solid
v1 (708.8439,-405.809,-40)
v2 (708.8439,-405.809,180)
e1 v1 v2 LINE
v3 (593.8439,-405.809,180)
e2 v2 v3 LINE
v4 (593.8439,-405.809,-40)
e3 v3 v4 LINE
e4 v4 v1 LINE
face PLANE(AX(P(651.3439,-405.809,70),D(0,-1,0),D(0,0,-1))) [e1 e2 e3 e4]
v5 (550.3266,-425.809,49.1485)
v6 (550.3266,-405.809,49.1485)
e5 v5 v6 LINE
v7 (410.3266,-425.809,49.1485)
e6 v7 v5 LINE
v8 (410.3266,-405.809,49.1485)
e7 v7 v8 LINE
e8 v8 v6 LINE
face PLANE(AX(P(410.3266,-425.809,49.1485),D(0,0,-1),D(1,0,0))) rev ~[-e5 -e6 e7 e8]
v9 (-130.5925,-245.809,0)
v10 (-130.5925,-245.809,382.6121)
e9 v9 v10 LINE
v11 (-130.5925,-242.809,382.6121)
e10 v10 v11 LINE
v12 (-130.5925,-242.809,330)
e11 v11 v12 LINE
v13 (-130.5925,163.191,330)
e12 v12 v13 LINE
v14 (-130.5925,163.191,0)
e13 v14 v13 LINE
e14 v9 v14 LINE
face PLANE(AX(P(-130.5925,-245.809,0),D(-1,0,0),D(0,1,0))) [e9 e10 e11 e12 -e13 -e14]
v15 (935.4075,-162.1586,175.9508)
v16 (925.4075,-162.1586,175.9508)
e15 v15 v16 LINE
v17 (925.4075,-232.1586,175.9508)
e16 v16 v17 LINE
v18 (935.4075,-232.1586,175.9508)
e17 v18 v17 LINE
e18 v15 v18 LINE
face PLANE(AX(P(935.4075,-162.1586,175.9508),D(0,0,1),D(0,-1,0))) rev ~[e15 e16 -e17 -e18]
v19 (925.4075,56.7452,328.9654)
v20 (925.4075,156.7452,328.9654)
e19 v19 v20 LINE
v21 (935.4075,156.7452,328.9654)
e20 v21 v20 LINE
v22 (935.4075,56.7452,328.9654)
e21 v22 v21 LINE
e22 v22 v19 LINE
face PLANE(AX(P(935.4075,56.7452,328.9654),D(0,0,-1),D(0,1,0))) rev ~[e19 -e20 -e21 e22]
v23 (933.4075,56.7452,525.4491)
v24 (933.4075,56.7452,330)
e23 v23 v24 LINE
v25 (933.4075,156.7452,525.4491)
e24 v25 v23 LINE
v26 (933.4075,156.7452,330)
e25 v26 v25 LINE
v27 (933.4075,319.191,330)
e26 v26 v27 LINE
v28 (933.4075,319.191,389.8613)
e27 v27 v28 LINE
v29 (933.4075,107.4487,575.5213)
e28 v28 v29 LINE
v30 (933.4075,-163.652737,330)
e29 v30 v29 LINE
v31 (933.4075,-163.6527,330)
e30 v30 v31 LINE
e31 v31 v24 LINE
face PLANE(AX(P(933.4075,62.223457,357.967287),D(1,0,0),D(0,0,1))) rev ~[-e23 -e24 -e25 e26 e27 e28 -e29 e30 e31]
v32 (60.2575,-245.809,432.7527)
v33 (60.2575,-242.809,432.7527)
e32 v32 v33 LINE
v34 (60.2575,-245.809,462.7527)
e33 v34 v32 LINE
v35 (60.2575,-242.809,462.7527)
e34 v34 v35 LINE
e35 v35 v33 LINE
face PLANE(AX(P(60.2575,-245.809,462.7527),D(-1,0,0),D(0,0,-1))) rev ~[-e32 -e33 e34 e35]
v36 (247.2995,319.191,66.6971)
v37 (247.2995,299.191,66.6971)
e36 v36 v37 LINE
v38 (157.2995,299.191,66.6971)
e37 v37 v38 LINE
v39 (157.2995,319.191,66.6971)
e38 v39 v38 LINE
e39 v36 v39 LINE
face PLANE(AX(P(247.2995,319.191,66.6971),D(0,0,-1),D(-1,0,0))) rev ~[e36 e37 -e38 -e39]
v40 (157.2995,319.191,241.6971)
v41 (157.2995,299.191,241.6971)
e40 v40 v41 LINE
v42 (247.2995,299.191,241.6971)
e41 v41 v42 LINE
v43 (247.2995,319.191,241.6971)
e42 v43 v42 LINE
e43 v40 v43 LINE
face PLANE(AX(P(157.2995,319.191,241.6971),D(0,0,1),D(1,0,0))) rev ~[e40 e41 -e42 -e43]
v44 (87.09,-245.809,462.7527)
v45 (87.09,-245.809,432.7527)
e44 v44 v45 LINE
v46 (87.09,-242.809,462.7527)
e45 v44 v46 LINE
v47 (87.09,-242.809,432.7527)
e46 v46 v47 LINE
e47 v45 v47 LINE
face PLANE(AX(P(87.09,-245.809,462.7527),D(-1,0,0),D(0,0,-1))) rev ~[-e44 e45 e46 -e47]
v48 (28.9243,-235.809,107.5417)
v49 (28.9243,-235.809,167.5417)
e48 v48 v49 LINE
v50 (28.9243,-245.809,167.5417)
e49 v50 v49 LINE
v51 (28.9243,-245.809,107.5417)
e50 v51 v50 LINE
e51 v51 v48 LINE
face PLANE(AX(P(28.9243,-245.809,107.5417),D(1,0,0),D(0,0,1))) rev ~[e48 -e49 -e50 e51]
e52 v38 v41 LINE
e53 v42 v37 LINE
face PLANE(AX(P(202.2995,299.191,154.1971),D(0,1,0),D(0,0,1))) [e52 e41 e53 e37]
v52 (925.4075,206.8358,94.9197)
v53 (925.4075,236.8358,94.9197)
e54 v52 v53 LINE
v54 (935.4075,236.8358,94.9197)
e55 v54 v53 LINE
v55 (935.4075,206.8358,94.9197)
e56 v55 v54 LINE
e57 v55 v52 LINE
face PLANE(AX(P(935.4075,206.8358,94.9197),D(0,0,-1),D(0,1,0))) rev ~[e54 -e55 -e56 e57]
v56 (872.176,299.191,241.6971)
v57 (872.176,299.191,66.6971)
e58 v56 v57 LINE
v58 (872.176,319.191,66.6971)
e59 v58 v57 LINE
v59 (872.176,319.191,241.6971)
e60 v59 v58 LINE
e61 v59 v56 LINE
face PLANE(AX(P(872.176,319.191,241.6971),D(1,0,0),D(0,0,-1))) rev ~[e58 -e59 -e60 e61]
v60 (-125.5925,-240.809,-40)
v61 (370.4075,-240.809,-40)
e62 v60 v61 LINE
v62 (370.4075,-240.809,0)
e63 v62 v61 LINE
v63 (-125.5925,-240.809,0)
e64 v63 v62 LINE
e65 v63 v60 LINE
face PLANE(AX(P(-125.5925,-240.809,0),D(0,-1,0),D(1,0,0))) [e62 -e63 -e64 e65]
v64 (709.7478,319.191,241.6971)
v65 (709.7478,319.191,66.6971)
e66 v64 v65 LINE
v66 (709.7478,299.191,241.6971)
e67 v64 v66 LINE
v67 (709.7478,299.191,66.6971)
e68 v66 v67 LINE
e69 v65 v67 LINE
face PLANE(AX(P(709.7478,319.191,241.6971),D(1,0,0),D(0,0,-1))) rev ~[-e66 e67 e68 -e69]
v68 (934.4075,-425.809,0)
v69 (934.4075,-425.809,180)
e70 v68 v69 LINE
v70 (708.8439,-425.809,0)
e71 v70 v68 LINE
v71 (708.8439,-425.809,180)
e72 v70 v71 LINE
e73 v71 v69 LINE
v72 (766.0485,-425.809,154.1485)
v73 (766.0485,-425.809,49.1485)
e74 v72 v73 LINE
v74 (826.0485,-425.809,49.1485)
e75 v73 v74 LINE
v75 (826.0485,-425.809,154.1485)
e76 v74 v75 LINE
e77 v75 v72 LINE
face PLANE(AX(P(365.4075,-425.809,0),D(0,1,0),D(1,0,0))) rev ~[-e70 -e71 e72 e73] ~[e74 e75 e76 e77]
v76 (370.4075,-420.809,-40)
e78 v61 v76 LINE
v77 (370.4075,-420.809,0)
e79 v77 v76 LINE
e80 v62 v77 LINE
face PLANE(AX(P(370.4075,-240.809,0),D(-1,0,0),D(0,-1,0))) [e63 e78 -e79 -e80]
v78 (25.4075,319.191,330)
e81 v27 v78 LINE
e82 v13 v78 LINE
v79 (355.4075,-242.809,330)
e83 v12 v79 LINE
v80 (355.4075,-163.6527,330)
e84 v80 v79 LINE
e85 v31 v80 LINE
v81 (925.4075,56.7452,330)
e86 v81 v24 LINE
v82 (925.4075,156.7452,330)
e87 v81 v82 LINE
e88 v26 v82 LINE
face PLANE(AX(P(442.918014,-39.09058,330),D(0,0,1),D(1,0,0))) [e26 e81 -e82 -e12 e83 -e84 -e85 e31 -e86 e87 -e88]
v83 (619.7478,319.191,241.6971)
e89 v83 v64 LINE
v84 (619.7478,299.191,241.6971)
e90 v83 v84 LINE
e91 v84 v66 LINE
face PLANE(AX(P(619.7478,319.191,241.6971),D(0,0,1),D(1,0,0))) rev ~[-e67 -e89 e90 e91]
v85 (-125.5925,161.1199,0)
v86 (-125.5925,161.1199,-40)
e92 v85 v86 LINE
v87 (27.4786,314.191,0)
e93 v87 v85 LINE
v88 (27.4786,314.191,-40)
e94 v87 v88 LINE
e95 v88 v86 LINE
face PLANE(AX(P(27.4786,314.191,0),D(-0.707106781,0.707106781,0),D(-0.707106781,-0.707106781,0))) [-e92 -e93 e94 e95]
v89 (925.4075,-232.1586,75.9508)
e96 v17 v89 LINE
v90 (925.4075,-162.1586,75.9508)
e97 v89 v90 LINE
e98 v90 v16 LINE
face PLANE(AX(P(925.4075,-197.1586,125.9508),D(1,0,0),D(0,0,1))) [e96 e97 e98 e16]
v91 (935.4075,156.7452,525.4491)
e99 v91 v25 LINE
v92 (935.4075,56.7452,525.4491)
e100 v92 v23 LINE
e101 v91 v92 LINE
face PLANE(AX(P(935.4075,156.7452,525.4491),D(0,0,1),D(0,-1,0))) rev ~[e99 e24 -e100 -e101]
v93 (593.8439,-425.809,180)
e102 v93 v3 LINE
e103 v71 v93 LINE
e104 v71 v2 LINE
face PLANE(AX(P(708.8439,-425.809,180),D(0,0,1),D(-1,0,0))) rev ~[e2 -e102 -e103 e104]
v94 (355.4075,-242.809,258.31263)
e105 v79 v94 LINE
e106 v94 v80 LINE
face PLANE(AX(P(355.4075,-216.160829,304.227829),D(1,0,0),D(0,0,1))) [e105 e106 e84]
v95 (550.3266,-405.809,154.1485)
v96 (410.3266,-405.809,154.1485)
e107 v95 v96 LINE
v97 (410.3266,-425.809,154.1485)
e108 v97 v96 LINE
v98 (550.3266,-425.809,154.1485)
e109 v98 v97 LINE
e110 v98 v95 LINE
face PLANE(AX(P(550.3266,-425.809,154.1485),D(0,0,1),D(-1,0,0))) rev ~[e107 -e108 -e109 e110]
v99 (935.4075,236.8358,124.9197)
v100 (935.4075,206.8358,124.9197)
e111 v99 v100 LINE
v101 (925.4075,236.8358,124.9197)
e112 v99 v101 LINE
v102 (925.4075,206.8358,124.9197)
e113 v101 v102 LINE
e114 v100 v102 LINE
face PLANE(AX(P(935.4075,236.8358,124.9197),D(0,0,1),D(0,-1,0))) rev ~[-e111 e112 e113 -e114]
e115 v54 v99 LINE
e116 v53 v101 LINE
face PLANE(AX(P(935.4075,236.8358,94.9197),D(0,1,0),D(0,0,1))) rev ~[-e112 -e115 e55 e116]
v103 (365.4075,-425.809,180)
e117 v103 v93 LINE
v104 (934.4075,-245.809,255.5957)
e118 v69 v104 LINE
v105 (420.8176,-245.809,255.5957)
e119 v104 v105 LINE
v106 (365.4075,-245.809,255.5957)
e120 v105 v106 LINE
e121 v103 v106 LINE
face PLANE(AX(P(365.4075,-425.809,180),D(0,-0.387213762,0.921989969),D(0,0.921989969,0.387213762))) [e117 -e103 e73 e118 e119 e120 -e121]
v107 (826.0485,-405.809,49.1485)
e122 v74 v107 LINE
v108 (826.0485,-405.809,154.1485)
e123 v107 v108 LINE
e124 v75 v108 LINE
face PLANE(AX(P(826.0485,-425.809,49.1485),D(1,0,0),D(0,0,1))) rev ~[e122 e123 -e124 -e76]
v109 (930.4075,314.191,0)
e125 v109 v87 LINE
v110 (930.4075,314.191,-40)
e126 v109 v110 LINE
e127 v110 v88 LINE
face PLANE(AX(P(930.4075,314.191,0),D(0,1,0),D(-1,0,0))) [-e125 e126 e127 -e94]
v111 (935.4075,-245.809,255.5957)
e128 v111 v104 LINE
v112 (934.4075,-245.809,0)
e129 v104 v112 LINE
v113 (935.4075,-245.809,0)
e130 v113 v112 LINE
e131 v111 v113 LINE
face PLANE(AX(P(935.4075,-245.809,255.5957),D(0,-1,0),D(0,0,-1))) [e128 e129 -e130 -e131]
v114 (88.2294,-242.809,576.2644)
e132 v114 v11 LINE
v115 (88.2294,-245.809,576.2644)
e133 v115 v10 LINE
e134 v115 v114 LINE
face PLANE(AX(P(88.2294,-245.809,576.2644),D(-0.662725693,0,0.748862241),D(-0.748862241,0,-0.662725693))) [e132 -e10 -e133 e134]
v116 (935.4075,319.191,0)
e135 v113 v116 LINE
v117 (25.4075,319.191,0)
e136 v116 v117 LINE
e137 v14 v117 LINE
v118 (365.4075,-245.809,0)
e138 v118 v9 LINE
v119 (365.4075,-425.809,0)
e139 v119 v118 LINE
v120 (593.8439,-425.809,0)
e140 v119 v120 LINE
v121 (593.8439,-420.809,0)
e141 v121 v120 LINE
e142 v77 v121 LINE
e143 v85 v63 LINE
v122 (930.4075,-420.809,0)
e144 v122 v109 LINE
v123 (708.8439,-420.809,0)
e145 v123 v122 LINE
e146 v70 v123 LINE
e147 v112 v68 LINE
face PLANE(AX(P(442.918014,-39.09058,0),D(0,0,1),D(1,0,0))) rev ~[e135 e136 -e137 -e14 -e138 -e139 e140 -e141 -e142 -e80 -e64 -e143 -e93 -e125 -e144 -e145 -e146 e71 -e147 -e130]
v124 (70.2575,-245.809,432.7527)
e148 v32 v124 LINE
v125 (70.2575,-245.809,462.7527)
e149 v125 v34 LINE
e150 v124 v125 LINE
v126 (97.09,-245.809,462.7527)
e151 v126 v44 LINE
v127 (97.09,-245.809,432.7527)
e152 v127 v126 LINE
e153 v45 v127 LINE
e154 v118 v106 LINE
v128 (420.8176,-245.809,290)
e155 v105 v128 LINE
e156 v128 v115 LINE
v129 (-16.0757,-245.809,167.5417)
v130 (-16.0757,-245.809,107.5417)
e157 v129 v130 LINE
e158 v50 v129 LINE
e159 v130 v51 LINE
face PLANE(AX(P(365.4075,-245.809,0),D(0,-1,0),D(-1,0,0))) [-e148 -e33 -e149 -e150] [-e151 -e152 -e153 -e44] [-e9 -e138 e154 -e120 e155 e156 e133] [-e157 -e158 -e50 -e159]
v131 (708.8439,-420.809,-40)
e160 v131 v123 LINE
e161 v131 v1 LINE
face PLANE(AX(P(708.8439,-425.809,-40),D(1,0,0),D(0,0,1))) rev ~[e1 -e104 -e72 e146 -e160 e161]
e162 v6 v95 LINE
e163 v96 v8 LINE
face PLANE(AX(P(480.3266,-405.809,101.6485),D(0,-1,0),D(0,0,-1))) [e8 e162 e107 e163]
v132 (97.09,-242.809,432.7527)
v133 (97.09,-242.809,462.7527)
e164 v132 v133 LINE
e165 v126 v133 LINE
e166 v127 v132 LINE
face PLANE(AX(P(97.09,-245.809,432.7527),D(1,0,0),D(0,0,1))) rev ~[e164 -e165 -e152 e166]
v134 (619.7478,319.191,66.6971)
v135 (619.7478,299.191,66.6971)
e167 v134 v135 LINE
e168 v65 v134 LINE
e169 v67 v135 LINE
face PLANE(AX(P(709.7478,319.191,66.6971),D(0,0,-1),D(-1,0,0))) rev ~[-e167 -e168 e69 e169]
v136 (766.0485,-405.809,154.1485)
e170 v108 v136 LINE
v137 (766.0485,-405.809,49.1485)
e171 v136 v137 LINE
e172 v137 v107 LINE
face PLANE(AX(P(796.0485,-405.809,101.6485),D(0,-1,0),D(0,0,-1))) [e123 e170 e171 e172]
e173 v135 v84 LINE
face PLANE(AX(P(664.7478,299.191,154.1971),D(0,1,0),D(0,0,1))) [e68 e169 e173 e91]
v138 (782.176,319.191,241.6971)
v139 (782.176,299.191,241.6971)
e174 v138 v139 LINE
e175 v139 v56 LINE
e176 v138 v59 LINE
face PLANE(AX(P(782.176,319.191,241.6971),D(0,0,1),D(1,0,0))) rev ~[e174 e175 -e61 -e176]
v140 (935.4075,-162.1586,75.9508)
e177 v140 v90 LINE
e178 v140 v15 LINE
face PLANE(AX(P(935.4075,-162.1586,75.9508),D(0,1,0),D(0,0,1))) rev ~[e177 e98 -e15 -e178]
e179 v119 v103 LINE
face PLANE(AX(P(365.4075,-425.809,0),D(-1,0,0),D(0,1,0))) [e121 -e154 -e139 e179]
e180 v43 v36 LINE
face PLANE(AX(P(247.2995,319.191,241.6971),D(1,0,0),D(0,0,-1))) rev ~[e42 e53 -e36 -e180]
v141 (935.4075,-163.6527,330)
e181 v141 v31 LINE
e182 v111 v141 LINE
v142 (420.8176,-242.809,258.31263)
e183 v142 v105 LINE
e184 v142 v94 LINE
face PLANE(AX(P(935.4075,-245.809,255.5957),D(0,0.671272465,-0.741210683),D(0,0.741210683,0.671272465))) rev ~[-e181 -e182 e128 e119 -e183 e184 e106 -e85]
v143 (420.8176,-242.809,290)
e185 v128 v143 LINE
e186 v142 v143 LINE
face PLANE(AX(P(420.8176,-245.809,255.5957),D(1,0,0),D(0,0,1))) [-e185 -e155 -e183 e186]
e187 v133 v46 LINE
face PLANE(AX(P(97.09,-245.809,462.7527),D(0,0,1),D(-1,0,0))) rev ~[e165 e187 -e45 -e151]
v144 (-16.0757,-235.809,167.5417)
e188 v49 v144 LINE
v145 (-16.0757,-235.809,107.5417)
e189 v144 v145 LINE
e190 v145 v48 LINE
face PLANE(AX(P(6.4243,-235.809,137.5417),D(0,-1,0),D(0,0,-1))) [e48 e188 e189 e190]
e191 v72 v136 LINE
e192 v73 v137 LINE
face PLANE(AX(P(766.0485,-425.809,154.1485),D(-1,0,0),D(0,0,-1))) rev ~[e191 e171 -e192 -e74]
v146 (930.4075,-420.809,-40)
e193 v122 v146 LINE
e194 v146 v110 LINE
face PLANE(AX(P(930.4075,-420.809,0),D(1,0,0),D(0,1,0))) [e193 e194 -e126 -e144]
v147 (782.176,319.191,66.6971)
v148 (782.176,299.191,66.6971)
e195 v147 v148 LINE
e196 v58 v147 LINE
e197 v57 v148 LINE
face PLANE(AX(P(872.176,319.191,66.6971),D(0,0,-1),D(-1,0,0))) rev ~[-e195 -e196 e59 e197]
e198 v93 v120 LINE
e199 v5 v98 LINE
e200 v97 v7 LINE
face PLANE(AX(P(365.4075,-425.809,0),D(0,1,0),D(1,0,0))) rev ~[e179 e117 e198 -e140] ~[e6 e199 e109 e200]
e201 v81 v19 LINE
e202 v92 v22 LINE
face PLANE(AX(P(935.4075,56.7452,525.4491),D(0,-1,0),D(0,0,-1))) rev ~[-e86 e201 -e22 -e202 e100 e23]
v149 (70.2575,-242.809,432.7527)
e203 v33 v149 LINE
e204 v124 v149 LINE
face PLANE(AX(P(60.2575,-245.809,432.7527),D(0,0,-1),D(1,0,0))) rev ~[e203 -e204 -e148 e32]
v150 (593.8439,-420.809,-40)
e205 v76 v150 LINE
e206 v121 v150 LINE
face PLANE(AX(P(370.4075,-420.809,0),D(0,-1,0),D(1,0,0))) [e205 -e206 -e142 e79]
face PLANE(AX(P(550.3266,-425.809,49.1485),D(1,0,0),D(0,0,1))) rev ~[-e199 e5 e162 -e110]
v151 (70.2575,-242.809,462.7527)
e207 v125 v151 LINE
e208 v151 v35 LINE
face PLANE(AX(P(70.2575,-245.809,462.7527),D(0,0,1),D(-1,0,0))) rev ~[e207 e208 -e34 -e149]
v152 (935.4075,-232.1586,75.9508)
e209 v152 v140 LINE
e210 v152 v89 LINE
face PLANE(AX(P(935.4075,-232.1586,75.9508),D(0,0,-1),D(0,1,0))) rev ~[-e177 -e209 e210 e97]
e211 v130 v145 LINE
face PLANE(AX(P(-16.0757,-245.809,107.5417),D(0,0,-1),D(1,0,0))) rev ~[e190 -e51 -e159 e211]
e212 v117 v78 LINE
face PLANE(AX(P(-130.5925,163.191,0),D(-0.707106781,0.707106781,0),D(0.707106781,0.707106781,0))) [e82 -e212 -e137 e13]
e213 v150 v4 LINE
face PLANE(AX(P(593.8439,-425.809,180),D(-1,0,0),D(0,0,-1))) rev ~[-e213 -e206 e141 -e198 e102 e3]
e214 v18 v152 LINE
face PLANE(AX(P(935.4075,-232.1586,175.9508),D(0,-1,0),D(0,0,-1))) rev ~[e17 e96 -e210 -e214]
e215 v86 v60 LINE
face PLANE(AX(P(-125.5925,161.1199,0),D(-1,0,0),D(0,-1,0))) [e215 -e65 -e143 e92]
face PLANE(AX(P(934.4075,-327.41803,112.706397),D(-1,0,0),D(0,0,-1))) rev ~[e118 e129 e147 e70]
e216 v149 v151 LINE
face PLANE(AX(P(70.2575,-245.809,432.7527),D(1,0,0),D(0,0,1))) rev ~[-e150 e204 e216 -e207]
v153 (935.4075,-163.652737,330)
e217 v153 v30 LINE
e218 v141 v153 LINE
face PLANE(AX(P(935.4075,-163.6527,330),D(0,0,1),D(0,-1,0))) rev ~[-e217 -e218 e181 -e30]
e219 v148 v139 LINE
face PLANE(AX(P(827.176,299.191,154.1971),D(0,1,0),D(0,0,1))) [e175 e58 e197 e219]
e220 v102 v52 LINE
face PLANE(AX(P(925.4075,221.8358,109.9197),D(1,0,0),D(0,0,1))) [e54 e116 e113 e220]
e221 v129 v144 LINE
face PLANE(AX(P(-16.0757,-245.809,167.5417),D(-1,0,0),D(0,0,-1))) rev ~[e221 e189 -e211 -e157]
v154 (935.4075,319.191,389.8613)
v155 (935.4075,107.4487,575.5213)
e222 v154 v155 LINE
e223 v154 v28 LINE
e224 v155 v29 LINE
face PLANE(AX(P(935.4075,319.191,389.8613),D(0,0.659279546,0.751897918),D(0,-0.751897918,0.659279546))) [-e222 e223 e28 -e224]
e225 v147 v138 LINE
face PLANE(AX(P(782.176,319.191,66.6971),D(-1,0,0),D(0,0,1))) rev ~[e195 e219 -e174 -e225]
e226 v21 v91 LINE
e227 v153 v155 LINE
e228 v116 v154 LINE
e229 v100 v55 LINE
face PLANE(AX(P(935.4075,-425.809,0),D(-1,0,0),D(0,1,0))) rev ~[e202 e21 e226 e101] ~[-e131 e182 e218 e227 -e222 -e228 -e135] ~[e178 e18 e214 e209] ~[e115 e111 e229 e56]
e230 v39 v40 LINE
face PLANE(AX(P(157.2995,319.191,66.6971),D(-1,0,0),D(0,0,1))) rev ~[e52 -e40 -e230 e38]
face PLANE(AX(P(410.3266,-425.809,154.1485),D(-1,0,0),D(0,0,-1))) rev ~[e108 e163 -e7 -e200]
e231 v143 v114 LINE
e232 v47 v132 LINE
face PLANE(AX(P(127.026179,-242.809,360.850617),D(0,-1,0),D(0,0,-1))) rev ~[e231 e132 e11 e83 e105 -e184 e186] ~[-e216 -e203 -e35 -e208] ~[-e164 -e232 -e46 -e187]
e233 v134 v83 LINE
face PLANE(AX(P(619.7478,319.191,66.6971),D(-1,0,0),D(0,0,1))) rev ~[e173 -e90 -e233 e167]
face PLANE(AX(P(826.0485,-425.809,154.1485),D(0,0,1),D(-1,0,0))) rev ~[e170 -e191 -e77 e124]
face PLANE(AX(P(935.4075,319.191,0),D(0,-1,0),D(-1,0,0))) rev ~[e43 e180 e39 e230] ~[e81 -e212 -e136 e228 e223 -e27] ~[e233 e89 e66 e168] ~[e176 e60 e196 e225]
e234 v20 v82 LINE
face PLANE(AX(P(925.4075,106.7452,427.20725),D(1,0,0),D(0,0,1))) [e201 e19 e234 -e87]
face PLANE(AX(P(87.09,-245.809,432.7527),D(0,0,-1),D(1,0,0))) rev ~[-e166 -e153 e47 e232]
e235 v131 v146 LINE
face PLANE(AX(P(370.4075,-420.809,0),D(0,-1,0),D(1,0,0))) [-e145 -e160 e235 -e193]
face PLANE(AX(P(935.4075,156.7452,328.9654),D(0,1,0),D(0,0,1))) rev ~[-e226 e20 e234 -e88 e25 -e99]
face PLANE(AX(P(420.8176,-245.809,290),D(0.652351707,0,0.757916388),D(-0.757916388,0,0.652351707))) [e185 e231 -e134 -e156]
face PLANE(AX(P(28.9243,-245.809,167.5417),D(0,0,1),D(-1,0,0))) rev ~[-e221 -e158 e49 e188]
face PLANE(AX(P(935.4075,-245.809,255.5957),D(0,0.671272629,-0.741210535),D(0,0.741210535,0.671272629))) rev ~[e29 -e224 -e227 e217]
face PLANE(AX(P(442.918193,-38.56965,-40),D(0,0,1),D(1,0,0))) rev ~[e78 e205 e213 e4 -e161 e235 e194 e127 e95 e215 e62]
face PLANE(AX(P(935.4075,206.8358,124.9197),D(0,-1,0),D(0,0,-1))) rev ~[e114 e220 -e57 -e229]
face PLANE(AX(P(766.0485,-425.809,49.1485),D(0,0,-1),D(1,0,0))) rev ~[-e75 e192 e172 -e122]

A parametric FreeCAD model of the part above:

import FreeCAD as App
import Part
import Sketcher

V = App.Vector
Q = App.Units.Quantity


def add_polygon(sketch, points):
    """Adds a closed chain of lines whose ends are joined by coincident constraints."""
    first, n = sketch.GeometryCount, len(points)
    for a, b in zip(points, points[1:] + points[:1]):
        sketch.addGeometry(Part.LineSegment(App.Vector(*a, 0), App.Vector(*b, 0)), False)
    for i in range(n):
        sketch.addConstraint(Sketcher.Constraint("Coincident", first + i, 2, first + (i + 1) % n, 1))

doc = App.newDocument("Part")
params = doc.addObject("Spreadsheet::Sheet", "Params")
for row, (alias, value) in enumerate([
    ("sketch1_width", "570 mm"),
    ("sketch1_width2", "910 mm"),
    ("sketch1_width3", "496 mm"),
    ("sketch1_height", "180 mm"),
    ("sketch1_height2", "745 mm"),
    ("pad1_length", "330 mm"),
    ("sketch2_width", "180 mm"),
    ("sketch2_height", "150 mm"),
    ("sketch2_length", "195.23 mm"),
    ("pocket1_length", "730 mm"),
    ("sketch3_width", "565 mm"),
    ("pad2_length", "2 mm"),
    ("pocket2_length", "580 mm"),
    ("sketch5_width", "551.41 mm"),
    ("pad3_length", "3 mm"),
    ("sketch6_width", "560 mm"),
    ("sketch6_width2", "496 mm"),
    ("sketch6_height", "735 mm"),
    ("sketch6_height2", "180 mm"),
    ("pad4_length", "40 mm"),
    ("sketch7_width", "100 mm"),
    ("sketch7_width2", "70 mm"),
    ("sketch7_width3", "30 mm"),
    ("pocket3_length", "10 mm"),
    ("sketch8_width", "115 mm"),
    ("sketch8_width2", "60 mm"),
    ("sketch8_width3", "140 mm"),
    ("sketch8_height", "220 mm"),
    ("sketch8_height2", "105 mm"),
    ("pocket4_length", "20 mm"),
    ("sketch9_width", "45 mm"),
    ("sketch9_width2", "10 mm"),
    ("sketch9_height", "60 mm"),
    ("sketch9_height2", "30 mm"),
    ("pocket5_length", "10 mm"),
    ("sketch10_width", "90 mm"),
    ("sketch10_height", "175 mm"),
    ("pocket6_length", "20 mm"),
    ("sketch11_width", "180 mm"),
    ("sketch11_length", "195.23 mm"),
    ("pocket7_length", "1 mm"),
], start=1):
    params.set(f"A{row}", alias)
    params.set(f"B{row}", "=" + value)
    params.setAlias(f"B{row}", alias)

body = doc.addObject("PartDesign::Body", "Body")

sketch1 = body.newObject("Sketcher::SketchObject", "Sketch")
sketch1.AttachmentSupport = (doc.getObject("XY_Plane"), [""])
sketch1.MapMode = "FlatFace"
add_polygon(sketch1, [(365, -246), (365, -426), (935, -426), (935, 319), (25, 319), (-131, 163), (-131, -246)])
sketch1.addConstraint(Sketcher.Constraint("Vertical", 0))
sketch1.addConstraint(Sketcher.Constraint("Horizontal", 1))
sketch1.addConstraint(Sketcher.Constraint("Vertical", 2))
sketch1.addConstraint(Sketcher.Constraint("Horizontal", 3))
sketch1.addConstraint(Sketcher.Constraint("Vertical", 5))
sketch1.addConstraint(Sketcher.Constraint("Horizontal", 6))
sketch1.addConstraint(Sketcher.Constraint("DistanceX", 1, 1, 1, 2, Q("570 mm")))
sketch1.addConstraint(Sketcher.Constraint("DistanceX", 3, 2, 3, 1, Q("910 mm")))
sketch1.addConstraint(Sketcher.Constraint("DistanceX", 6, 1, 6, 2, Q("496 mm")))
sketch1.addConstraint(Sketcher.Constraint("DistanceY", 0, 2, 0, 1, Q("180 mm")))
sketch1.addConstraint(Sketcher.Constraint("DistanceY", 2, 1, 2, 2, Q("745 mm")))
sketch1.addConstraint(Sketcher.Constraint("DistanceY", 5, 2, 5, 1, Q("409 mm")))
sketch1.addConstraint(Sketcher.Constraint("DistanceX", -1, 1, 0, 2, Q("365.4075 mm")))
sketch1.addConstraint(Sketcher.Constraint("DistanceY", 0, 2, -1, 1, Q("425.809 mm")))
sketch1.setExpression("Constraints[13]", "Params.sketch1_width")
sketch1.setExpression("Constraints[14]", "Params.sketch1_width2")
sketch1.setExpression("Constraints[15]", "Params.sketch1_width3")
sketch1.setExpression("Constraints[16]", "Params.sketch1_height")
sketch1.setExpression("Constraints[17]", "Params.sketch1_height2")
pad1 = body.newObject("PartDesign::Pad", "Pad")
pad1.Profile = sketch1
pad1.setExpression("Length", "Params.pad1_length")

sketch2 = body.newObject("Sketcher::SketchObject", "Sketch001")
sketch2.AttachmentSupport = (doc.getObject("YZ_Plane"), [""])
sketch2.MapMode = "FlatFace"
sketch2.AttachmentOffset = App.Placement(V(0, 0, 365.4075), App.Rotation())
add_polygon(sketch2, [(-246, 256), (-426, 180), (-426, 330), (-246, 330)])
sketch2.addConstraint(Sketcher.Constraint("Vertical", 1))
sketch2.addConstraint(Sketcher.Constraint("Horizontal", 2))
sketch2.addConstraint(Sketcher.Constraint("Vertical", 3))
sketch2.addConstraint(Sketcher.Constraint("DistanceX", 2, 1, 2, 2, Q("180 mm")))
sketch2.addConstraint(Sketcher.Constraint("DistanceY", 1, 1, 1, 2, Q("150 mm")))
sketch2.addConstraint(Sketcher.Constraint("DistanceY", -1, 1, 0, 2, Q("180 mm")))
sketch2.addConstraint(Sketcher.Constraint("Distance", 0, Q("195.23 mm")))
sketch2.addConstraint(Sketcher.Constraint("DistanceX", 0, 2, -1, 1, Q("425.809 mm")))
sketch2.setExpression("Constraints[7]", "Params.sketch2_width")
sketch2.setExpression("Constraints[8]", "Params.sketch2_height")
sketch2.setExpression("Constraints[10]", "Params.sketch2_length")
pocket1 = body.newObject("PartDesign::Pocket", "Pocket")
pocket1.Profile = sketch2
pocket1.setExpression("Length", "Params.pocket1_length")
pocket1.Reversed = True

sketch3 = body.newObject("Sketcher::SketchObject", "Sketch002")
sketch3.AttachmentSupport = (doc.getObject("YZ_Plane"), [""])
sketch3.MapMode = "FlatFace"
sketch3.AttachmentOffset = App.Placement(V(0, 0, 935.4075), App.Rotation())
add_polygon(sketch3, [(-246, 256), (319, 256), (319, 390), (107, 576)])
sketch3.addConstraint(Sketcher.Constraint("Horizontal", 0))
sketch3.addConstraint(Sketcher.Constraint("Vertical", 1))
sketch3.addConstraint(Sketcher.Constraint("DistanceX", 0, 1, 0, 2, Q("565 mm")))
sketch3.addConstraint(Sketcher.Constraint("DistanceY", 1, 2, 2, 2, Q("185.66 mm")))
sketch3.addConstraint(Sketcher.Constraint("DistanceY", 1, 1, 1, 2, Q("134.2656 mm")))
sketch3.addConstraint(Sketcher.Constraint("DistanceX", -1, 1, 0, 2, Q("319.191 mm")))
sketch3.addConstraint(Sketcher.Constraint("Distance", 2, Q("281.6104 mm")))
sketch3.addConstraint(Sketcher.Constraint("DistanceY", -1, 1, 0, 2, Q("255.5957 mm")))
sketch3.setExpression("Constraints[6]", "Params.sketch3_width")
pad2 = body.newObject("PartDesign::Pad", "Pad001")
pad2.Profile = sketch3
pad2.setExpression("Length", "Params.pad2_length")
pad2.Reversed = True

sketch4 = body.newObject("Sketcher::SketchObject", "Sketch003")
sketch4.AttachmentSupport = (doc.getObject("YZ_Plane"), [""])
sketch4.MapMode = "FlatFace"
sketch4.AttachmentOffset = App.Placement(V(0, 0, 935.4075), App.Rotation())
add_polygon(sketch4, [(-246, 330), (-246, 256), (-164, 330)])
sketch4.addConstraint(Sketcher.Constraint("Vertical", 0))
sketch4.addConstraint(Sketcher.Constraint("Horizontal", 2))
sketch4.addConstraint(Sketcher.Constraint("DistanceY", -1, 1, 1, 2, Q("330 mm")))
sketch4.addConstraint(Sketcher.Constraint("DistanceX", 2, 2, 2, 1, Q("82.1563 mm")))
sketch4.addConstraint(Sketcher.Constraint("DistanceY", 0, 2, 0, 1, Q("74.4043 mm")))
sketch4.addConstraint(Sketcher.Constraint("DistanceX", 0, 2, -1, 1, Q("245.809 mm")))
pocket2 = body.newObject("PartDesign::Pocket", "Pocket001")
pocket2.Profile = sketch4
pocket2.setExpression("Length", "Params.pocket2_length")

sketch5 = body.newObject("Sketcher::SketchObject", "Sketch004")
sketch5.AttachmentSupport = (doc.getObject("XZ_Plane"), [""])
sketch5.MapMode = "FlatFace"
sketch5.AttachmentOffset = App.Placement(V(0, 0, 245.809), App.Rotation())
add_polygon(sketch5, [(-131, 256), (421, 256), (421, 290), (88, 576), (-131, 383)])
sketch5.addConstraint(Sketcher.Constraint("Horizontal", 0))
sketch5.addConstraint(Sketcher.Constraint("Vertical", 1))
sketch5.addConstraint(Sketcher.Constraint("Vertical", 4))
sketch5.addConstraint(Sketcher.Constraint("DistanceY", -1, 1, 1, 2, Q("290 mm")))
sketch5.addConstraint(Sketcher.Constraint("DistanceX", 0, 1, 0, 2, Q("551.41 mm")))
sketch5.addConstraint(Sketcher.Constraint("Angle", 2, Q("139.2809 deg")))
sketch5.addConstraint(Sketcher.Constraint("Distance", 2, Q("438.819 mm")))
sketch5.addConstraint(Sketcher.Constraint("DistanceY", 1, 1, 1, 2, Q("34.4043 mm")))
sketch5.addConstraint(Sketcher.Constraint("DistanceY", 4, 2, 4, 1, Q("127.0164 mm")))
sketch5.addConstraint(Sketcher.Constraint("DistanceX", -1, 1, 0, 2, Q("420.8176 mm")))
sketch5.setExpression("Constraints[9]", "Params.sketch5_width")
pad3 = body.newObject("PartDesign::Pad", "Pad002")
pad3.Profile = sketch5
pad3.setExpression("Length", "Params.pad3_length")
pad3.Reversed = True

sketch6 = body.newObject("Sketcher::SketchObject", "Sketch005")
sketch6.AttachmentSupport = (doc.getObject("XY_Plane"), [""])
sketch6.MapMode = "FlatFace"
add_polygon(sketch6, [(930, 314), (930, -421), (370, -421), (370, -241), (-126, -241), (-126, 161), (27, 314)])
sketch6.addConstraint(Sketcher.Constraint("Vertical", 0))
sketch6.addConstraint(Sketcher.Constraint("Horizontal", 1))
sketch6.addConstraint(Sketcher.Constraint("Vertical", 2))
sketch6.addConstraint(Sketcher.Constraint("Horizontal", 3))
sketch6.addConstraint(Sketcher.Constraint("Vertical", 4))
sketch6.addConstraint(Sketcher.Constraint("Horizontal", 6))
sketch6.addConstraint(Sketcher.Constraint("DistanceX", 1, 2, 1, 1, Q("560 mm")))
sketch6.addConstraint(Sketcher.Constraint("DistanceX", 3, 2, 3, 1, Q("496 mm")))
sketch6.addConstraint(Sketcher.Constraint("DistanceY", 0, 2, 0, 1, Q("735 mm")))
sketch6.addConstraint(Sketcher.Constraint("DistanceY", 2, 1, 2, 2, Q("180 mm")))
sketch6.addConstraint(Sketcher.Constraint("Angle", 5, Q("45 deg")))
sketch6.addConstraint(Sketcher.Constraint("DistanceX", 6, 1, 6, 2, Q("902.929 mm")))
sketch6.addConstraint(Sketcher.Constraint("DistanceY", -1, 1, 4, 2, Q("161.12 mm")))
sketch6.addConstraint(Sketcher.Constraint("DistanceX", -1, 1, 0, 2, Q("930.4075 mm")))
sketch6.setExpression("Constraints[13]", "Params.sketch6_width")
sketch6.setExpression("Constraints[14]", "Params.sketch6_width2")
sketch6.setExpression("Constraints[15]", "Params.sketch6_height")
sketch6.setExpression("Constraints[16]", "Params.sketch6_height2")
pad4 = body.newObject("PartDesign::Pad", "Pad003")
pad4.Profile = sketch6
pad4.setExpression("Length", "Params.pad4_length")
pad4.Reversed = True

sketch7 = body.newObject("Sketcher::SketchObject", "Sketch006")
sketch7.AttachmentSupport = (doc.getObject("YZ_Plane"), [""])
sketch7.MapMode = "FlatFace"
sketch7.AttachmentOffset = App.Placement(V(0, 0, 935.4075), App.Rotation())
add_polygon(sketch7, [(57, 525), (57, 329), (157, 329), (157, 525)])
add_polygon(sketch7, [(-232, 176), (-232, 76), (-162, 76), (-162, 176)])
add_polygon(sketch7, [(207, 125), (207, 95), (237, 95), (237, 125)])
sketch7.addConstraint(Sketcher.Constraint("Vertical", 0))
sketch7.addConstraint(Sketcher.Constraint("Horizontal", 1))
sketch7.addConstraint(Sketcher.Constraint("Vertical", 2))
sketch7.addConstraint(Sketcher.Constraint("Horizontal", 3))
sketch7.addConstraint(Sketcher.Constraint("Vertical", 4))
sketch7.addConstraint(Sketcher.Constraint("Horizontal", 5))
sketch7.addConstraint(Sketcher.Constraint("Vertical", 6))
sketch7.addConstraint(Sketcher.Constraint("Horizontal", 7))
sketch7.addConstraint(Sketcher.Constraint("Vertical", 8))
sketch7.addConstraint(Sketcher.Constraint("Horizontal", 9))
sketch7.addConstraint(Sketcher.Constraint("Vertical", 10))
sketch7.addConstraint(Sketcher.Constraint("Horizontal", 11))
sketch7.addConstraint(Sketcher.Constraint("Equal", 3, 4))
sketch7.addConstraint(Sketcher.Constraint("Equal", 11, 8))
sketch7.addConstraint(Sketcher.Constraint("DistanceX", 1, 1, 1, 2, Q("100 mm")))
sketch7.addConstraint(Sketcher.Constraint("DistanceX", 5, 1, 5, 2, Q("70 mm")))
sketch7.addConstraint(Sketcher.Constraint("DistanceX", 9, 1, 9, 2, Q("30 mm")))
sketch7.addConstraint(Sketcher.Constraint("DistanceY", 0, 2, 0, 1, Q("196.4837 mm")))
sketch7.addConstraint(Sketcher.Constraint("DistanceY", -1, 1, 2, 2, Q("525.449 mm")))
sketch7.addConstraint(Sketcher.Constraint("DistanceY", 5, 2, 8, 2, Q("18.969 mm")))
sketch7.addConstraint(Sketcher.Constraint("DistanceX", -1, 1, 0, 2, Q("56.7452 mm")))
sketch7.addConstraint(Sketcher.Constraint("DistanceX", 4, 2, -1, 1, Q("232.1586 mm")))
sketch7.addConstraint(Sketcher.Constraint("DistanceY", -1, 1, 4, 2, Q("75.9508 mm")))
sketch7.addConstraint(Sketcher.Constraint("DistanceX", -1, 1, 8, 2, Q("206.8358 mm")))
sketch7.setExpression("Constraints[26]", "Params.sketch7_width")
sketch7.setExpression("Constraints[27]", "Params.sketch7_width2")
sketch7.setExpression("Constraints[28]", "Params.sketch7_width3")
pocket3 = body.newObject("PartDesign::Pocket", "Pocket002")
pocket3.Profile = sketch7
pocket3.setExpression("Length", "Params.pocket3_length")

sketch8 = body.newObject("Sketcher::SketchObject", "Sketch007")
sketch8.AttachmentSupport = (doc.getObject("XZ_Plane"), [""])
sketch8.MapMode = "FlatFace"
sketch8.AttachmentOffset = App.Placement(V(0, 0, 425.809), App.Rotation())
add_polygon(sketch8, [(594, 180), (594, -40), (709, -40), (709, 180)])
add_polygon(sketch8, [(766, 154), (766, 49), (826, 49), (826, 154)])
add_polygon(sketch8, [(410, 154), (410, 49), (550, 49), (550, 154)])
sketch8.addConstraint(Sketcher.Constraint("Vertical", 0))
sketch8.addConstraint(Sketcher.Constraint("Horizontal", 1))
sketch8.addConstraint(Sketcher.Constraint("Vertical", 2))
sketch8.addConstraint(Sketcher.Constraint("Horizontal", 3))
sketch8.addConstraint(Sketcher.Constraint("Vertical", 4))
sketch8.addConstraint(Sketcher.Constraint("Horizontal", 5))
sketch8.addConstraint(Sketcher.Constraint("Vertical", 6))
sketch8.addConstraint(Sketcher.Constraint("Horizontal", 7))
sketch8.addConstraint(Sketcher.Constraint("Vertical", 8))
sketch8.addConstraint(Sketcher.Constraint("Horizontal", 9))
sketch8.addConstraint(Sketcher.Constraint("Vertical", 10))
sketch8.addConstraint(Sketcher.Constraint("Horizontal", 11))
sketch8.addConstraint(Sketcher.Constraint("Horizontal", 5, 2, 8, 2))
sketch8.addConstraint(Sketcher.Constraint("Horizontal", 7, 2, 10, 2))
sketch8.addConstraint(Sketcher.Constraint("DistanceX", 1, 1, 1, 2, Q("115 mm")))
sketch8.addConstraint(Sketcher.Constraint("DistanceX", 5, 1, 5, 2, Q("60 mm")))
sketch8.addConstraint(Sketcher.Constraint("DistanceX", 9, 1, 9, 2, Q("140 mm")))
sketch8.addConstraint(Sketcher.Constraint("DistanceY", 0, 2, 0, 1, Q("220 mm")))
sketch8.addConstraint(Sketcher.Constraint("DistanceY", 4, 2, 4, 1, Q("105 mm")))
sketch8.addConstraint(Sketcher.Constraint("DistanceY", 0, 2, -1, 1, Q("40 mm")))
sketch8.addConstraint(Sketcher.Constraint("DistanceX", -1, 1, 0, 2, Q("593.844 mm")))
sketch8.addConstraint(Sketcher.Constraint("DistanceX", 8, 2, 4, 2, Q("355.722 mm")))
sketch8.addConstraint(Sketcher.Constraint("DistanceX", -1, 1, 4, 2, Q("766.0485 mm")))
sketch8.addConstraint(Sketcher.Constraint("DistanceY", -1, 1, 4, 2, Q("49.1485 mm")))
sketch8.setExpression("Constraints[26]", "Params.sketch8_width")
sketch8.setExpression("Constraints[27]", "Params.sketch8_width2")
sketch8.setExpression("Constraints[28]", "Params.sketch8_width3")
sketch8.setExpression("Constraints[29]", "Params.sketch8_height")
sketch8.setExpression("Constraints[30]", "Params.sketch8_height2")
pocket4 = body.newObject("PartDesign::Pocket", "Pocket003")
pocket4.Profile = sketch8
pocket4.setExpression("Length", "Params.pocket4_length")

sketch9 = body.newObject("Sketcher::SketchObject", "Sketch008")
sketch9.AttachmentSupport = (doc.getObject("XZ_Plane"), [""])
sketch9.MapMode = "FlatFace"
sketch9.AttachmentOffset = App.Placement(V(0, 0, 245.809), App.Rotation())
add_polygon(sketch9, [(-16, 168), (-16, 108), (29, 108), (29, 168)])
add_polygon(sketch9, [(87, 463), (87, 433), (97, 433), (97, 463)])
add_polygon(sketch9, [(60, 463), (60, 433), (70, 433), (70, 463)])
sketch9.addConstraint(Sketcher.Constraint("Vertical", 0))
sketch9.addConstraint(Sketcher.Constraint("Horizontal", 1))
sketch9.addConstraint(Sketcher.Constraint("Vertical", 2))
sketch9.addConstraint(Sketcher.Constraint("Horizontal", 3))
sketch9.addConstraint(Sketcher.Constraint("Vertical", 4))
sketch9.addConstraint(Sketcher.Constraint("Horizontal", 5))
sketch9.addConstraint(Sketcher.Constraint("Vertical", 6))
sketch9.addConstraint(Sketcher.Constraint("Horizontal", 7))
sketch9.addConstraint(Sketcher.Constraint("Vertical", 8))
sketch9.addConstraint(Sketcher.Constraint("Horizontal", 9))
sketch9.addConstraint(Sketcher.Constraint("Vertical", 10))
sketch9.addConstraint(Sketcher.Constraint("Horizontal", 11))
sketch9.addConstraint(Sketcher.Constraint("Horizontal", 5, 2, 8, 2))
sketch9.addConstraint(Sketcher.Constraint("Horizontal", 7, 2, 10, 2))
sketch9.addConstraint(Sketcher.Constraint("Equal", 7, 9))
sketch9.addConstraint(Sketcher.Constraint("DistanceX", 1, 1, 1, 2, Q("45 mm")))
sketch9.addConstraint(Sketcher.Constraint("DistanceX", 5, 1, 5, 2, Q("10 mm")))
sketch9.addConstraint(Sketcher.Constraint("DistanceY", 0, 2, 0, 1, Q("60 mm")))
sketch9.addConstraint(Sketcher.Constraint("DistanceY", 4, 2, 4, 1, Q("30 mm")))
sketch9.addConstraint(Sketcher.Constraint("DistanceX", -1, 1, 4, 2, Q("87.09 mm")))
sketch9.addConstraint(Sketcher.Constraint("DistanceY", 2, 2, 4, 2, Q("265.211 mm")))
sketch9.addConstraint(Sketcher.Constraint("DistanceX", 0, 2, -1, 1, Q("16.0757 mm")))
sketch9.addConstraint(Sketcher.Constraint("DistanceY", -1, 1, 0, 2, Q("107.5417 mm")))
sketch9.addConstraint(Sketcher.Constraint("DistanceX", -1, 1, 8, 2, Q("60.2575 mm")))
sketch9.setExpression("Constraints[27]", "Params.sketch9_width")
sketch9.setExpression("Constraints[28]", "Params.sketch9_width2")
sketch9.setExpression("Constraints[29]", "Params.sketch9_height")
sketch9.setExpression("Constraints[30]", "Params.sketch9_height2")
pocket5 = body.newObject("PartDesign::Pocket", "Pocket004")
pocket5.Profile = sketch9
pocket5.setExpression("Length", "Params.pocket5_length")

sketch10 = body.newObject("Sketcher::SketchObject", "Sketch009")
sketch10.AttachmentSupport = (doc.getObject("XZ_Plane"), [""])
sketch10.MapMode = "FlatFace"
sketch10.AttachmentOffset = App.Placement(V(0, 0, -319.191), App.Rotation())
add_polygon(sketch10, [(872, 242), (872, 67), (782, 67), (782, 242)])
add_polygon(sketch10, [(710, 242), (710, 67), (620, 67), (620, 242)])
add_polygon(sketch10, [(247, 242), (247, 67), (157, 67), (157, 242)])
sketch10.addConstraint(Sketcher.Constraint("Vertical", 0))
sketch10.addConstraint(Sketcher.Constraint("Horizontal", 1))
sketch10.addConstraint(Sketcher.Constraint("Vertical", 2))
sketch10.addConstraint(Sketcher.Constraint("Horizontal", 3))
sketch10.addConstraint(Sketcher.Constraint("Vertical", 4))
sketch10.addConstraint(Sketcher.Constraint("Horizontal", 5))
sketch10.addConstraint(Sketcher.Constraint("Vertical", 6))
sketch10.addConstraint(Sketcher.Constraint("Horizontal", 7))
sketch10.addConstraint(Sketcher.Constraint("Vertical", 8))
sketch10.addConstraint(Sketcher.Constraint("Horizontal", 9))
sketch10.addConstraint(Sketcher.Constraint("Vertical", 10))
sketch10.addConstraint(Sketcher.Constraint("Horizontal", 11))
sketch10.addConstraint(Sketcher.Constraint("Horizontal", 1, 2, 4, 2))
sketch10.addConstraint(Sketcher.Constraint("Horizontal", 3, 2, 6, 2))
sketch10.addConstraint(Sketcher.Constraint("Horizontal", 5, 2, 8, 2))
sketch10.addConstraint(Sketcher.Constraint("Horizontal", 7, 2, 10, 2))
sketch10.addConstraint(Sketcher.Constraint("Equal", 3, 5))
sketch10.addConstraint(Sketcher.Constraint("Equal", 7, 9))
sketch10.addConstraint(Sketcher.Constraint("DistanceX", 1, 2, 1, 1, Q("90 mm")))
sketch10.addConstraint(Sketcher.Constraint("DistanceY", 0, 2, 0, 1, Q("175 mm")))
sketch10.addConstraint(Sketcher.Constraint("DistanceX", -1, 1, 0, 2, Q("872.176 mm")))
sketch10.addConstraint(Sketcher.Constraint("DistanceY", -1, 1, 0, 2, Q("66.697 mm")))
sketch10.addConstraint(Sketcher.Constraint("DistanceX", -1, 1, 4, 2, Q("709.7478 mm")))
sketch10.addConstraint(Sketcher.Constraint("DistanceX", -1, 1, 8, 2, Q("247.2995 mm")))
sketch10.setExpression("Constraints[30]", "Params.sketch10_width")
sketch10.setExpression("Constraints[31]", "Params.sketch10_height")
pocket6 = body.newObject("PartDesign::Pocket", "Pocket005")
pocket6.Profile = sketch10
pocket6.setExpression("Length", "Params.pocket6_length")
pocket6.Reversed = True

sketch11 = body.newObject("Sketcher::SketchObject", "Sketch010")
sketch11.AttachmentSupport = (doc.getObject("YZ_Plane"), [""])
sketch11.MapMode = "FlatFace"
sketch11.AttachmentOffset = App.Placement(V(0, 0, 935.4075), App.Rotation())
add_polygon(sketch11, [(-246, 256), (-426, 180), (-426, 0), (-246, 0)])
sketch11.addConstraint(Sketcher.Constraint("Vertical", 1))
sketch11.addConstraint(Sketcher.Constraint("Horizontal", 2))
sketch11.addConstraint(Sketcher.Constraint("Vertical", 3))
sketch11.addConstraint(Sketcher.Constraint("PointOnObject", 1, 2, -1))
sketch11.addConstraint(Sketcher.Constraint("Equal", 2, 1))
sketch11.addConstraint(Sketcher.Constraint("DistanceX", 2, 1, 2, 2, Q("180 mm")))
sketch11.addConstraint(Sketcher.Constraint("Distance", 0, Q("195.23 mm")))
sketch11.addConstraint(Sketcher.Constraint("DistanceX", 0, 2, -1, 1, Q("425.809 mm")))
sketch11.setExpression("Constraints[9]", "Params.sketch11_width")
sketch11.setExpression("Constraints[10]", "Params.sketch11_length")
pocket7 = body.newObject("PartDesign::Pocket", "Pocket006")
pocket7.Profile = sketch11
pocket7.setExpression("Length", "Params.pocket7_length")

doc.recompute()
